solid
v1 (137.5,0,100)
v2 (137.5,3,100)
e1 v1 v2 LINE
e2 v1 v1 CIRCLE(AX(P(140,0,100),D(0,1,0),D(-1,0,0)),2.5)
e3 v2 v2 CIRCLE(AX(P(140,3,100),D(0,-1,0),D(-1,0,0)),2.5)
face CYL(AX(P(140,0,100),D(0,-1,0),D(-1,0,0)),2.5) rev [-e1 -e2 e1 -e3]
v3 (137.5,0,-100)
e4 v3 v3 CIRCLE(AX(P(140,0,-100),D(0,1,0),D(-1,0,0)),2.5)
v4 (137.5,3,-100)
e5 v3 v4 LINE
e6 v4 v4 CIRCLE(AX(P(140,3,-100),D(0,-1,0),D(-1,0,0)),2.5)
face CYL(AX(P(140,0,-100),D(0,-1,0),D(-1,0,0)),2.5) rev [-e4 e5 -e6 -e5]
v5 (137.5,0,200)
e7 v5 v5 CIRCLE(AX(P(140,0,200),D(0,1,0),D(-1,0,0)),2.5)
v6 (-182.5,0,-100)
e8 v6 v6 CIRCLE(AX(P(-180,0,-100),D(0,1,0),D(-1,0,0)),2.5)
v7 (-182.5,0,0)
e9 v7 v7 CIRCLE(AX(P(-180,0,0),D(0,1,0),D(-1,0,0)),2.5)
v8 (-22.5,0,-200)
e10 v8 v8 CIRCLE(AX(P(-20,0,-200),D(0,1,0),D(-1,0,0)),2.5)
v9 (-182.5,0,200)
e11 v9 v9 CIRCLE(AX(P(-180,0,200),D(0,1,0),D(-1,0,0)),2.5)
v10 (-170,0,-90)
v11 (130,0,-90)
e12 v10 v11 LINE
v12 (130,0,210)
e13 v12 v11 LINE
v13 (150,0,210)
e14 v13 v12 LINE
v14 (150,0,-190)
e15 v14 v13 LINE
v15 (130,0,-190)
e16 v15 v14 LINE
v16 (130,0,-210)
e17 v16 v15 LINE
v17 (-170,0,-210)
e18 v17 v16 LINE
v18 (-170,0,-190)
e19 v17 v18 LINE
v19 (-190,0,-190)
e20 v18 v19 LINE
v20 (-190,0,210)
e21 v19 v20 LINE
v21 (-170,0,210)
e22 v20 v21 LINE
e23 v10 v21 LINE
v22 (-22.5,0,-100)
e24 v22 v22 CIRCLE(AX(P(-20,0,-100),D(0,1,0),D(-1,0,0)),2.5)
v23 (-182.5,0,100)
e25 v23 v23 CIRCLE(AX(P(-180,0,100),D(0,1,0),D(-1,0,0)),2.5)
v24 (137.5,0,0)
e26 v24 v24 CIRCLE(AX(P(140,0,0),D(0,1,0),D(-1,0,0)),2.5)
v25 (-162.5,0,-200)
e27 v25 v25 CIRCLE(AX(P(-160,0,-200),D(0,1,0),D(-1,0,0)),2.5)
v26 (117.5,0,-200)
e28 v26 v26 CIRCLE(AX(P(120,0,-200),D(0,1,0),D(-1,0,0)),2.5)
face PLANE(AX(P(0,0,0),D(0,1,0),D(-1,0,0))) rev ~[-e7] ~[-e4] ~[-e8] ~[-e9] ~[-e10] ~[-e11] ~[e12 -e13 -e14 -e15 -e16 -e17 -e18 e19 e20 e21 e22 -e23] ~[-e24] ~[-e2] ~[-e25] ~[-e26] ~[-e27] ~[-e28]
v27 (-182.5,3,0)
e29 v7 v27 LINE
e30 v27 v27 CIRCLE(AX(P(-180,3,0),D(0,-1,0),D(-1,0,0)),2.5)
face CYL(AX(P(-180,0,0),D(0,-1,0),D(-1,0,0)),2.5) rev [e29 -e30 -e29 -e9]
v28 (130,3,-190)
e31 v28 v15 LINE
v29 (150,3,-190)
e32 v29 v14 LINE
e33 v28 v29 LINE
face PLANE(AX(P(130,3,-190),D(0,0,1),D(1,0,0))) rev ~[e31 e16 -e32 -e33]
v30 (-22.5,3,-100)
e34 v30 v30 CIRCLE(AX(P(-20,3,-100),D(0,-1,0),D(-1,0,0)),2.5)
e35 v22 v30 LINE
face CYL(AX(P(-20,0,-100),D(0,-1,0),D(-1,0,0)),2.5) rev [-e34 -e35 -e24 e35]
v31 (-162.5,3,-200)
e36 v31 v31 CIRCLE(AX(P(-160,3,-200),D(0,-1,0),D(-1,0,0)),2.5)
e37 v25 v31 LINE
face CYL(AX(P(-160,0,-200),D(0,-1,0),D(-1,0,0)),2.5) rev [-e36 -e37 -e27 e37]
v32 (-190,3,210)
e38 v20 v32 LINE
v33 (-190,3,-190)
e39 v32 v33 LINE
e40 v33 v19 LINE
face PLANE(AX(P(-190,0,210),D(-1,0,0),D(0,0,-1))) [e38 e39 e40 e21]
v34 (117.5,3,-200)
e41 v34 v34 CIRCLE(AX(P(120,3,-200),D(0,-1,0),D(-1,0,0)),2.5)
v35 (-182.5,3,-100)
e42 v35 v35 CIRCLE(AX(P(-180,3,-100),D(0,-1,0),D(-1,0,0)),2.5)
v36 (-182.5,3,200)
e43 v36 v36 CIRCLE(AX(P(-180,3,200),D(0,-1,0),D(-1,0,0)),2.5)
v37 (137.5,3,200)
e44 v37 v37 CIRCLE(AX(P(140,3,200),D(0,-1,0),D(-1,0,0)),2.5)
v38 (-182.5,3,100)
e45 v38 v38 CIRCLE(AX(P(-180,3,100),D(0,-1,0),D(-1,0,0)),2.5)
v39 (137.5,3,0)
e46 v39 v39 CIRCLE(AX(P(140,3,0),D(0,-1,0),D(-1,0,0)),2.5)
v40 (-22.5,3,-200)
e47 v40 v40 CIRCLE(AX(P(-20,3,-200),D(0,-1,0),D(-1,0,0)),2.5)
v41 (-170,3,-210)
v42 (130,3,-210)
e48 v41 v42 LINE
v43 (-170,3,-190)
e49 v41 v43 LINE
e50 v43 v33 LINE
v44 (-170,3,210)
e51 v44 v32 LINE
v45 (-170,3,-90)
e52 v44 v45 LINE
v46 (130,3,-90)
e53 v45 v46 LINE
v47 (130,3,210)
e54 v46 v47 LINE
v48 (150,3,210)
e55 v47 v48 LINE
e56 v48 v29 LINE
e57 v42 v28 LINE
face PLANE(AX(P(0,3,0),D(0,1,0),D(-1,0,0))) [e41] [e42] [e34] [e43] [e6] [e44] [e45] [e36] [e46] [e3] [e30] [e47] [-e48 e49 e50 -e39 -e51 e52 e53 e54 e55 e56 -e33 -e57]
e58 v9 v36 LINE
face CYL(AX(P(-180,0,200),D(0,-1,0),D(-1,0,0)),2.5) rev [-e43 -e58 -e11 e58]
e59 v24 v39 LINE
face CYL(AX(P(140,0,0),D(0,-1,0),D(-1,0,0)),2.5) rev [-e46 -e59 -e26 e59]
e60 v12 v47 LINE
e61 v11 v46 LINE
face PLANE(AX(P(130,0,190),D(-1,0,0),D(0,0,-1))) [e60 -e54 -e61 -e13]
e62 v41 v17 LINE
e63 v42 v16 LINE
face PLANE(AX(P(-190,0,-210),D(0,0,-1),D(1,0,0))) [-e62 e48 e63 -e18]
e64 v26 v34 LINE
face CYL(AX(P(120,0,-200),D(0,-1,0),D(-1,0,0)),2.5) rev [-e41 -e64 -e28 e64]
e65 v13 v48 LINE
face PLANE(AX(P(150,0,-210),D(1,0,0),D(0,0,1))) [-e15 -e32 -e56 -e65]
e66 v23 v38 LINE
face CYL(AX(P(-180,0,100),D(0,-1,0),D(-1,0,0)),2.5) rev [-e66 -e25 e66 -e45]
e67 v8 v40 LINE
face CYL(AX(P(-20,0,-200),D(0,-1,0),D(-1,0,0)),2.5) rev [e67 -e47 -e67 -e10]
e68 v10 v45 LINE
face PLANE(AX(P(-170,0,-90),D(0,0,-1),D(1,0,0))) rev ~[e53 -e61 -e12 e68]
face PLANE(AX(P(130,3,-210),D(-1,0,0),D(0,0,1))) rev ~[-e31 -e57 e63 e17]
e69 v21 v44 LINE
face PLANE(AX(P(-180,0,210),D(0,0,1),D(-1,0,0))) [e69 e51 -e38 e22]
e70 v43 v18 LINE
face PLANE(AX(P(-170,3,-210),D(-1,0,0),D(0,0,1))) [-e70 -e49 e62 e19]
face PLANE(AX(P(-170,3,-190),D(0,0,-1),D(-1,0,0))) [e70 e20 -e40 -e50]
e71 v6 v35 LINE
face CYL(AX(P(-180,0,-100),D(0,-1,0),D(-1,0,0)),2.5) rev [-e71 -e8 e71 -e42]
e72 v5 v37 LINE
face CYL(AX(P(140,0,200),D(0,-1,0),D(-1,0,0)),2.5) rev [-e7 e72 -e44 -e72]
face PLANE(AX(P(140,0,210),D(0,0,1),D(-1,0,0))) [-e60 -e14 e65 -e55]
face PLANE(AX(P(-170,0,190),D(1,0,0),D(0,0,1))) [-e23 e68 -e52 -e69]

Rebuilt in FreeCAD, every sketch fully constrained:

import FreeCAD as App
import Part
import Sketcher


def add_polygon(sketch, points):
    """Adds a closed chain of lines whose ends are joined by coincident constraints."""
    first, n = sketch.GeometryCount, len(points)
    for a, b in zip(points, points[1:] + points[:1]):
        sketch.addGeometry(Part.LineSegment(App.Vector(*a, 0), App.Vector(*b, 0)), False)
    for i in range(n):
        sketch.addConstraint(Sketcher.Constraint("Coincident", first + i, 2, first + (i + 1) % n, 1))

doc = App.newDocument("Part")
body = doc.addObject("PartDesign::Body", "Body")

# Sketch on XZ plane
sketch1 = doc.addObject("Sketcher::SketchObject", "Sketch")
body.addObject(sketch1)
sketch1.AttachmentSupport = (doc.XZ_Plane, [""])
sketch1.MapMode = "FlatFace"
add_polygon(sketch1, [(-190, 210), (-170, 210), (-170, -90), (130, -90), (130, 210), (150, 210), (150, -210), (-190, -210)])  # lines 0-7
sketch1.addGeometry(Part.Circle(App.Vector(-180, 0, 0), App.Vector(0, 0, 1), 2.5), False)  # 8
sketch1.addGeometry(Part.Circle(App.Vector(-180, 100, 0), App.Vector(0, 0, 1), 2.5), False)  # 9
sketch1.addGeometry(Part.Circle(App.Vector(-180, 200, 0), App.Vector(0, 0, 1), 2.5), False)  # 10
sketch1.addGeometry(Part.Circle(App.Vector(-180, -100, 0), App.Vector(0, 0, 1), 2.5), False)  # 11
sketch1.addGeometry(Part.Circle(App.Vector(-20, -200, 0), App.Vector(0, 0, 1), 2.5), False)  # 12
sketch1.addGeometry(Part.Circle(App.Vector(-160, -200, 0), App.Vector(0, 0, 1), 2.5), False)  # 13
sketch1.addGeometry(Part.Circle(App.Vector(-20, -100, 0), App.Vector(0, 0, 1), 2.5), False)  # 14
sketch1.addGeometry(Part.Circle(App.Vector(140, -100, 0), App.Vector(0, 0, 1), 2.5), False)  # 15
sketch1.addGeometry(Part.Circle(App.Vector(140, 200, 0), App.Vector(0, 0, 1), 2.5), False)  # 16
sketch1.addConstraint([
    Sketcher.Constraint("Horizontal", 0),
    Sketcher.Constraint("Vertical", 1),
    Sketcher.Constraint("Horizontal", 2),
    Sketcher.Constraint("Vertical", 3),
    Sketcher.Constraint("Horizontal", 4),
    Sketcher.Constraint("Vertical", 5),
    Sketcher.Constraint("Horizontal", 6),
    Sketcher.Constraint("Vertical", 7),
    Sketcher.Constraint("Equal", 8, 9),
    Sketcher.Constraint("Equal", 9, 10),
    Sketcher.Constraint("Equal", 10, 11),
    Sketcher.Constraint("Equal", 11, 12),
    Sketcher.Constraint("Equal", 12, 13),
    Sketcher.Constraint("Equal", 13, 14),
    Sketcher.Constraint("Equal", 14, 15),
    Sketcher.Constraint("Equal", 15, 16),
    Sketcher.Constraint("Symmetric", 9, 3, 11, 3, -1),
    Sketcher.Constraint("PointOnObject", 8, 3, -1),
    Sketcher.Constraint("Horizontal", 12, 3, 13, 3),
    Sketcher.Constraint("Horizontal", 11, 3, 14, 3),
    Sketcher.Constraint("Horizontal", 14, 3, 15, 3),
    Sketcher.Constraint("Horizontal", 10, 3, 16, 3),
    Sketcher.Constraint("Horizontal", 0, 2, 3, 2),
    Sketcher.Constraint("Vertical", 8, 3, 9, 3),
    Sketcher.Constraint("Vertical", 9, 3, 10, 3),
    Sketcher.Constraint("Vertical", 12, 3, 14, 3),
    Sketcher.Constraint("Vertical", 15, 3, 16, 3),
    Sketcher.Constraint("Equal", 0, 4),
    Sketcher.Constraint("Equal", 2, 1),
    Sketcher.Constraint("Diameter", 8, 5.0),
    Sketcher.Constraint("DistanceX", 0, 1, 0, 2, 20.0),
    Sketcher.Constraint("DistanceX", 2, 1, 2, 2, 300.0),
    Sketcher.Constraint("DistanceY", 5, 2, 5, 1, 420.0),
    Sketcher.Constraint("DistanceX", 12, 3, -1, 1, 20.0),
    Sketcher.Constraint("DistanceY", 11, 3, 10, 3, 300.0),
    Sketcher.Constraint("DistanceY", 12, 3, 9, 3, 300.0),
    Sketcher.Constraint("DistanceX", 11, 3, 13, 3, 20.0),
    Sketcher.Constraint("DistanceX", 13, 3, 15, 3, 300.0),
    Sketcher.Constraint("DistanceX", 10, 3, 0, 2, 10.0),
    Sketcher.Constraint("DistanceY", 10, 3, 0, 2, 10.0),
    Sketcher.Constraint("DistanceY", 5, 2, 12, 3, 10.0),
    Sketcher.Constraint("DistanceX", 8, 3, -1, 1, 180.0),
])
pad1 = doc.addObject("PartDesign::Pad", "Pad")
body.addObject(pad1)
pad1.Profile = sketch1
pad1.Length = 3
pad1.Reversed = True

# Sketch on XZ plane
sketch2 = doc.addObject("Sketcher::SketchObject", "Sketch001")
body.addObject(sketch2)
sketch2.AttachmentSupport = (doc.XZ_Plane, [""])
sketch2.MapMode = "FlatFace"
sketch2.AttachmentOffset = App.Placement(App.Vector(0, 0, -3), App.Rotation())
add_polygon(sketch2, [(130, -190), (150, -190), (150, -210), (130, -210)])  # lines 0-3
add_polygon(sketch2, [(-190, -210), (-190, -190), (-170, -190), (-170, -210)])  # lines 4-7
sketch2.addConstraint([
    Sketcher.Constraint("Horizontal", 0),
    Sketcher.Constraint("Vertical", 1),
    Sketcher.Constraint("Horizontal", 2),
    Sketcher.Constraint("Vertical", 3),
    Sketcher.Constraint("Vertical", 4),
    Sketcher.Constraint("Horizontal", 5),
    Sketcher.Constraint("Vertical", 6),
    Sketcher.Constraint("Horizontal", 7),
    Sketcher.Constraint("Horizontal", 3, 2, 4, 2),
    Sketcher.Constraint("Horizontal", 2, 2, 6, 2),
    Sketcher.Constraint("Equal", 2, 5),
    Sketcher.Constraint("Equal", 7, 1),
    Sketcher.Constraint("DistanceX", 0, 1, 0, 2, 20.0),
    Sketcher.Constraint("DistanceX", -1, 1, 0, 2, 150.0),
    Sketcher.Constraint("DistanceY", 0, 2, -1, 1, 190.0),
    Sketcher.Constraint("DistanceX", 4, 2, -1, 1, 190.0),
])
pocket1 = doc.addObject("PartDesign::Pocket", "Pocket")
body.addObject(pocket1)
pocket1.Profile = sketch2
pocket1.Length = 3
pocket1.Reversed = True

# Sketch on XZ plane
sketch3 = doc.addObject("Sketcher::SketchObject", "Sketch002")
body.addObject(sketch3)
sketch3.AttachmentSupport = (doc.XZ_Plane, [""])
sketch3.MapMode = "FlatFace"
sketch3.addGeometry([
    Part.Circle(App.Vector(140, 0, 0), App.Vector(0, 0, 1), 2.5),
    Part.Circle(App.Vector(140, 100, 0), App.Vector(0, 0, 1), 2.5),
    Part.Circle(App.Vector(120, -200, 0), App.Vector(0, 0, 1), 2.5),
], False)
sketch3.addConstraint([
    Sketcher.Constraint("Equal", 0, 1),
    Sketcher.Constraint("Equal", 1, 2),
    Sketcher.Constraint("PointOnObject", 0, 3, -1),
    Sketcher.Constraint("Vertical", 0, 3, 1, 3),
    Sketcher.Constraint("Diameter", 0, 5.0),
    Sketcher.Constraint("DistanceX", -1, 1, 2, 3, 120.0),
    Sketcher.Constraint("DistanceX", 2, 3, 0, 3, 20.0),
    Sketcher.Constraint("DistanceY", 2, 3, 1, 3, 300.0),
    Sketcher.Constraint("DistanceY", -1, 1, 1, 3, 100.0),
])
pocket2 = doc.addObject("PartDesign::Pocket", "Pocket001")
body.addObject(pocket2)
pocket2.Profile = sketch3
pocket2.Length = 10

doc.recompute()
